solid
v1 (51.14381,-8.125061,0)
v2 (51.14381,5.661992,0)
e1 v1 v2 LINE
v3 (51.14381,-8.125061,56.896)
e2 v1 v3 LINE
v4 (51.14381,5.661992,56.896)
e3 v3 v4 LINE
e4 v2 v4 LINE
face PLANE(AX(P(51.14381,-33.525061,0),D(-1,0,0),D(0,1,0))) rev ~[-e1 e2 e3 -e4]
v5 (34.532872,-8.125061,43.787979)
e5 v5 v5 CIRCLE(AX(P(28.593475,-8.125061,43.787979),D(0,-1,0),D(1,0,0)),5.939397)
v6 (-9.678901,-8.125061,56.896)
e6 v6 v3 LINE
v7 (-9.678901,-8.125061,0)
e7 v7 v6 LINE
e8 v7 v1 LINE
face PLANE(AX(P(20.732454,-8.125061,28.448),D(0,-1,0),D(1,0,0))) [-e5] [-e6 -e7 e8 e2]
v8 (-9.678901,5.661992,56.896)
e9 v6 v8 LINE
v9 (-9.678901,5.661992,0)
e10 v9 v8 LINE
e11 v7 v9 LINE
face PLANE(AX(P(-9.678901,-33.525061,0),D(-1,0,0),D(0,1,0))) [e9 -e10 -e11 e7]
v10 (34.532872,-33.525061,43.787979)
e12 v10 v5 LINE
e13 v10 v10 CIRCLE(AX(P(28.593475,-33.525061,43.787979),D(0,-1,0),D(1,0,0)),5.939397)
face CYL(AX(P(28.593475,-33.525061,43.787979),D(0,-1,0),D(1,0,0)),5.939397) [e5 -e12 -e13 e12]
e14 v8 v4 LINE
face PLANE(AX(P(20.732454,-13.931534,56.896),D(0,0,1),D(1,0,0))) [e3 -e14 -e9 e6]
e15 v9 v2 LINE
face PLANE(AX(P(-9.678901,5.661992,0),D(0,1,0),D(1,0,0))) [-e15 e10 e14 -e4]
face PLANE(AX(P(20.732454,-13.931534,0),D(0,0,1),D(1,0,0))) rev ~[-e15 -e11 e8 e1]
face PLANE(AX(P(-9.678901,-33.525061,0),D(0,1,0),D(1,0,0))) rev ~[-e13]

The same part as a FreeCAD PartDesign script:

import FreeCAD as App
import Part
import Sketcher
Q = App.Units.Quantity


def add_polygon(sketch, points):
    """Adds a closed chain of lines whose ends are joined by coincident constraints."""
    first, n = sketch.GeometryCount, len(points)
    for a, b in zip(points, points[1:] + points[:1]):
        sketch.addGeometry(Part.LineSegment(App.Vector(*a, 0), App.Vector(*b, 0)), False)
    for i in range(n):
        sketch.addConstraint(Sketcher.Constraint("Coincident", first + i, 2, first + (i + 1) % n, 1))

doc = App.newDocument("Part")
params = doc.addObject("Spreadsheet::Sheet", "Params")
for row, (alias, value) in enumerate([
    ("pad1_length", "2.24 in"),
    ("sketch2_height", "2.24 in"),
    ("pocket1_length", "1 in"),
], start=1):
    params.set(f"A{row}", alias)
    params.set(f"B{row}", "=" + value)
    params.setAlias(f"B{row}", alias)

body = doc.addObject("PartDesign::Body", "Body")

# Sketch on XY plane
sketch1 = body.newObject("Sketcher::SketchObject", "Sketch")
sketch1.AttachmentSupport = (doc.getObject("XY_Plane"), [""])
sketch1.MapMode = "FlatFace"
add_polygon(sketch1, [(-9.678901, 5.661992), (-9.678901, -33.525061), (51.14381, -33.525061), (51.14381, 5.661992)])  # lines 0-3
sketch1.addConstraint([
    Sketcher.Constraint("Vertical", 0),
    Sketcher.Constraint("Horizontal", 1),
    Sketcher.Constraint("Vertical", 2),
    Sketcher.Constraint("Horizontal", 3),
    Sketcher.Constraint("DistanceX", 1, 1, 1, 2, Q("60.822711 mm")),
    Sketcher.Constraint("DistanceX", 0, 2, -1, 1, Q("9.678901 mm")),
    Sketcher.Constraint("DistanceY", 0, 2, 0, 1, Q("39.187053 mm")),
    Sketcher.Constraint("DistanceY", 0, 2, -1, 1, Q("33.525061 mm")),
])
pad1 = body.newObject("PartDesign::Pad", "Pad")
pad1.Profile = sketch1
pad1.setExpression("Length", "Params.pad1_length")

# Sketch on XZ plane
sketch2 = body.newObject("Sketcher::SketchObject", "Sketch001")
sketch2.AttachmentSupport = (doc.getObject("XZ_Plane"), [""])
sketch2.MapMode = "FlatFace"
sketch2.AttachmentOffset = App.Placement(App.Vector(0, 0, 33.525061), App.Rotation())
add_polygon(sketch2, [(-9.678901, 56.896), (-9.678901, 0), (51.14381, 0), (51.14381, 56.896)])  # lines 0-3
sketch2.addGeometry(Part.Circle(App.Vector(28.593475, 43.787979, 0), App.Vector(0, 0, 1), 5.939397), False)  # 4
sketch2.addConstraint([
    Sketcher.Constraint("Vertical", 0),
    Sketcher.Constraint("Horizontal", 1),
    Sketcher.Constraint("Vertical", 2),
    Sketcher.Constraint("Horizontal", 3),
    Sketcher.Constraint("PointOnObject", 0, 2, -1),
    Sketcher.Constraint("DistanceY", 0, 2, 0, 1, Q("2.24 in")),
    Sketcher.Constraint("Diameter", 4, Q("11.878794 mm")),
    Sketcher.Constraint("DistanceX", 1, 1, 1, 2, Q("60.822711 mm")),
    Sketcher.Constraint("DistanceX", 0, 2, -1, 1, Q("9.678901 mm")),
    Sketcher.Constraint("DistanceY", -1, 1, 4, 3, Q("43.787979 mm")),
    Sketcher.Constraint("DistanceX", -1, 1, 4, 3, Q("28.593475 mm")),
])
sketch2.setExpression("Constraints[9]", "Params.sketch2_height")
pocket1 = body.newObject("PartDesign::Pocket", "Pocket")
pocket1.Profile = sketch2
pocket1.setExpression("Length", "Params.pocket1_length")

doc.recompute()
